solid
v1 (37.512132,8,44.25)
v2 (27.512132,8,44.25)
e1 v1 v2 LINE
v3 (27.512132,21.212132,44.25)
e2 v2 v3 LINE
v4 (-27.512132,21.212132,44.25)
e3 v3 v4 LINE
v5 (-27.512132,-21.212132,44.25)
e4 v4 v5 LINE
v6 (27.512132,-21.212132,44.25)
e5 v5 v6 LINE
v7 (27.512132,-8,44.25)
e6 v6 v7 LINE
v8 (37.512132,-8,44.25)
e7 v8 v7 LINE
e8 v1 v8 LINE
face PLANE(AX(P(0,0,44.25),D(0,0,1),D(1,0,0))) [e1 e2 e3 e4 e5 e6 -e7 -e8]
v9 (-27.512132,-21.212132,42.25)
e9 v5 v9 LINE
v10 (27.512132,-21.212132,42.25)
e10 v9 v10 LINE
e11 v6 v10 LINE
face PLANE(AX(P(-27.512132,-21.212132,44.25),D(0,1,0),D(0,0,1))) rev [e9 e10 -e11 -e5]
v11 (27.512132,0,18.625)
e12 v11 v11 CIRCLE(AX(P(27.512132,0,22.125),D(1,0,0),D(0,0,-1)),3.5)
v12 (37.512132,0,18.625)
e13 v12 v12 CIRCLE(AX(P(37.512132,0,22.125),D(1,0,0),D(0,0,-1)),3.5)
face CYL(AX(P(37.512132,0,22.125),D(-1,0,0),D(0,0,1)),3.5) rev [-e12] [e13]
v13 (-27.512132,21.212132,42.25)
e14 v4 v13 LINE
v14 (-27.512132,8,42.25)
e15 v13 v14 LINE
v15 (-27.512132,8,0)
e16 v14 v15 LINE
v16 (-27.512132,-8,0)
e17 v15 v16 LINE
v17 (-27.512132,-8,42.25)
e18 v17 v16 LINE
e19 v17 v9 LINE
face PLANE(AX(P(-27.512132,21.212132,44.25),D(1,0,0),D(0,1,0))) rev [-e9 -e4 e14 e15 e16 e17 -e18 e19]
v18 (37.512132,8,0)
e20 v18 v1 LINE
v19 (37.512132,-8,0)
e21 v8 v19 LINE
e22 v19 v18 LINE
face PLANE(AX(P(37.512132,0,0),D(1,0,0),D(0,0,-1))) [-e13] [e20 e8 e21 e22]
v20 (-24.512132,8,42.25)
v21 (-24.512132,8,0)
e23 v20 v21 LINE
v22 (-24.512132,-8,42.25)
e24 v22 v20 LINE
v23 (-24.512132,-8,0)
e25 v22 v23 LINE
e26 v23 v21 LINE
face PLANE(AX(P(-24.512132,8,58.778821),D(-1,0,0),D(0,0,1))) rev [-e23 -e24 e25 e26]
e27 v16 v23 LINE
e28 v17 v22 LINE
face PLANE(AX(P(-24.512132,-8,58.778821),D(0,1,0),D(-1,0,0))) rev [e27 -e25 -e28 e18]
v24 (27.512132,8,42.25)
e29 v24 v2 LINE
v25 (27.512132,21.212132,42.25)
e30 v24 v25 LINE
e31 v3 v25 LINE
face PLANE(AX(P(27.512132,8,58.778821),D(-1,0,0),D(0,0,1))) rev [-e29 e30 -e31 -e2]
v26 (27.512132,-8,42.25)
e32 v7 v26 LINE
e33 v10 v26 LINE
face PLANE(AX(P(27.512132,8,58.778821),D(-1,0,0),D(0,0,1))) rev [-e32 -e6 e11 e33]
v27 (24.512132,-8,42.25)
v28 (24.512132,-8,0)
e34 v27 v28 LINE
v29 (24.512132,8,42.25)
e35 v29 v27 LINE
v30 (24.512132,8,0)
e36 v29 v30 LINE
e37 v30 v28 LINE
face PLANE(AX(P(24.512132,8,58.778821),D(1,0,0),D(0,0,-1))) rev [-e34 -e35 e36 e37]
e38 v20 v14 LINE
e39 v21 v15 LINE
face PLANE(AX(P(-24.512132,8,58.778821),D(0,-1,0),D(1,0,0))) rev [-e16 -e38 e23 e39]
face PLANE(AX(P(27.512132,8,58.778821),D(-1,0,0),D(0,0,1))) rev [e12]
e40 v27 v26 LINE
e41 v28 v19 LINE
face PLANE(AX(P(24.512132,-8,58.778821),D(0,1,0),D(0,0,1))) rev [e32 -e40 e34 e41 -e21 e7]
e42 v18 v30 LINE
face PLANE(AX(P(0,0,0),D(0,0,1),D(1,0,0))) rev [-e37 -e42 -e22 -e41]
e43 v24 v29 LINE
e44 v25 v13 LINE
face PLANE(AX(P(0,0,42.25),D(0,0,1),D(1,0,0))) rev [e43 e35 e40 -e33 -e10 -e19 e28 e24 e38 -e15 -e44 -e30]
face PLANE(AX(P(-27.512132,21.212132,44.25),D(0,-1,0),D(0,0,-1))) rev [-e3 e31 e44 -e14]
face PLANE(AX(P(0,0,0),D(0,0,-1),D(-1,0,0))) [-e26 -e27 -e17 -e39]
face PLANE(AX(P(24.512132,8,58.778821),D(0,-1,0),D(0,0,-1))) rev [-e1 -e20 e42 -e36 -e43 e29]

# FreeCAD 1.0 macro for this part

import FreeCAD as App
import Part
import Sketcher

V = App.Vector


def add_polygon(sketch, points):
    """Adds a closed chain of lines whose ends are joined by coincident constraints."""
    first, n = sketch.GeometryCount, len(points)
    for a, b in zip(points, points[1:] + points[:1]):
        sketch.addGeometry(Part.LineSegment(App.Vector(*a, 0), App.Vector(*b, 0)), False)
    for i in range(n):
        sketch.addConstraint(Sketcher.Constraint("Coincident", first + i, 2, first + (i + 1) % n, 1))

doc = App.newDocument("Part")
body = doc.addObject("PartDesign::Body", "Body")

sketch1 = body.newObject("Sketcher::SketchObject", "Sketch")
sketch1.AttachmentSupport = (doc.getObject("XY_Plane"), [""])
sketch1.MapMode = "FlatFace"
add_polygon(sketch1, [(24.5, 8), (24.5, -8), (27.5, -8), (27.5, 8)])
sketch1.addConstraint([
    Sketcher.Constraint("Vertical", 0),
    Sketcher.Constraint("Horizontal", 1),
    Sketcher.Constraint("Vertical", 2),
    Sketcher.Constraint("Horizontal", 3),
    Sketcher.Constraint("DistanceX", 1, 1, 1, 2, 3.0),
    Sketcher.Constraint("DistanceY", 0, 2, 0, 1, 16.0),
    Sketcher.Constraint("DistanceY", 0, 2, -1, 1, 8.0),
    Sketcher.Constraint("DistanceX", -1, 1, 0, 2, 24.512132),
])
pad1 = body.newObject("PartDesign::Pad", "Pad")
pad1.Profile = sketch1
pad1.Length = 42.25
body2 = doc.addObject("PartDesign::Body", "Body001")

sketch2 = body2.newObject("Sketcher::SketchObject", "Sketch001")
sketch2.AttachmentSupport = (doc.getObject("XY_Plane001"), [""])
sketch2.MapMode = "FlatFace"
add_polygon(sketch2, [(-27.5, 8), (-27.5, -8), (-24.5, -8), (-24.5, 8)])
sketch2.addConstraint([
    Sketcher.Constraint("Vertical", 0),
    Sketcher.Constraint("Horizontal", 1),
    Sketcher.Constraint("Vertical", 2),
    Sketcher.Constraint("Horizontal", 3),
    Sketcher.Constraint("DistanceX", 1, 1, 1, 2, 3.0),
    Sketcher.Constraint("DistanceY", 0, 2, 0, 1, 16.0),
    Sketcher.Constraint("DistanceY", 0, 2, -1, 1, 8.0),
    Sketcher.Constraint("DistanceX", 0, 2, -1, 1, 27.512132),
])
pad2 = body2.newObject("PartDesign::Pad", "Pad001")
pad2.Profile = sketch2
pad2.Length = 42.25
body.AllowCompound = True
doc.recompute()

boolean = body.newObject("PartDesign::Boolean", "Boolean")
boolean.Type = "Fuse"
boolean.addObjects([body2])

sketch3 = body.newObject("Sketcher::SketchObject", "Sketch002")
sketch3.AttachmentSupport = (doc.getObject("XY_Plane"), [""])
sketch3.MapMode = "FlatFace"
sketch3.AttachmentOffset = App.Placement(V(0, 0, 42.25), App.Rotation())
add_polygon(sketch3, [(-28, 21), (-28, -21), (28, -21), (28, 21)])
sketch3.addConstraint([
    Sketcher.Constraint("Vertical", 0),
    Sketcher.Constraint("Horizontal", 1),
    Sketcher.Constraint("Vertical", 2),
    Sketcher.Constraint("Horizontal", 3),
    Sketcher.Constraint("Symmetric", 0, 2, 2, 2, -1, 1),
    Sketcher.Constraint("DistanceX", 1, 1, 1, 2, 55.024264),
    Sketcher.Constraint("DistanceY", 0, 2, 0, 1, 42.424264),
])
pad3 = body.newObject("PartDesign::Pad", "Pad002")
pad3.Profile = sketch3
pad3.Length = 2

sketch4 = body.newObject("Sketcher::SketchObject", "Sketch003")
sketch4.AttachmentSupport = (doc.getObject("YZ_Plane"), [""])
sketch4.MapMode = "FlatFace"
sketch4.AttachmentOffset = App.Placement(V(0, 0, 27.512132), App.Rotation())
add_polygon(sketch4, [(8, 44.2), (-8, 44.2), (-8, 0), (8, 0)])
sketch4.addGeometry(Part.Circle(V(0, 22.1, 0), V(0, 0, 1), 3.5), False)
sketch4.addConstraint([
    Sketcher.Constraint("Horizontal", 0),
    Sketcher.Constraint("Vertical", 1),
    Sketcher.Constraint("Horizontal", 2),
    Sketcher.Constraint("Vertical", 3),
    Sketcher.Constraint("Symmetric", 1, 2, 2, 2, -1, 1),
    Sketcher.Constraint("PointOnObject", 4, 3, -2),
    Sketcher.Constraint("Diameter", 4, 7.0),
    Sketcher.Constraint("DistanceX", 0, 2, 0, 1, 16.0),
    Sketcher.Constraint("DistanceY", 1, 2, 1, 1, 44.25),
    Sketcher.Constraint("DistanceY", -1, 1, 4, 3, 22.125),
])
pad4 = body.newObject("PartDesign::Pad", "Pad003")
pad4.Profile = sketch4
pad4.Length = 10

doc.recompute()
